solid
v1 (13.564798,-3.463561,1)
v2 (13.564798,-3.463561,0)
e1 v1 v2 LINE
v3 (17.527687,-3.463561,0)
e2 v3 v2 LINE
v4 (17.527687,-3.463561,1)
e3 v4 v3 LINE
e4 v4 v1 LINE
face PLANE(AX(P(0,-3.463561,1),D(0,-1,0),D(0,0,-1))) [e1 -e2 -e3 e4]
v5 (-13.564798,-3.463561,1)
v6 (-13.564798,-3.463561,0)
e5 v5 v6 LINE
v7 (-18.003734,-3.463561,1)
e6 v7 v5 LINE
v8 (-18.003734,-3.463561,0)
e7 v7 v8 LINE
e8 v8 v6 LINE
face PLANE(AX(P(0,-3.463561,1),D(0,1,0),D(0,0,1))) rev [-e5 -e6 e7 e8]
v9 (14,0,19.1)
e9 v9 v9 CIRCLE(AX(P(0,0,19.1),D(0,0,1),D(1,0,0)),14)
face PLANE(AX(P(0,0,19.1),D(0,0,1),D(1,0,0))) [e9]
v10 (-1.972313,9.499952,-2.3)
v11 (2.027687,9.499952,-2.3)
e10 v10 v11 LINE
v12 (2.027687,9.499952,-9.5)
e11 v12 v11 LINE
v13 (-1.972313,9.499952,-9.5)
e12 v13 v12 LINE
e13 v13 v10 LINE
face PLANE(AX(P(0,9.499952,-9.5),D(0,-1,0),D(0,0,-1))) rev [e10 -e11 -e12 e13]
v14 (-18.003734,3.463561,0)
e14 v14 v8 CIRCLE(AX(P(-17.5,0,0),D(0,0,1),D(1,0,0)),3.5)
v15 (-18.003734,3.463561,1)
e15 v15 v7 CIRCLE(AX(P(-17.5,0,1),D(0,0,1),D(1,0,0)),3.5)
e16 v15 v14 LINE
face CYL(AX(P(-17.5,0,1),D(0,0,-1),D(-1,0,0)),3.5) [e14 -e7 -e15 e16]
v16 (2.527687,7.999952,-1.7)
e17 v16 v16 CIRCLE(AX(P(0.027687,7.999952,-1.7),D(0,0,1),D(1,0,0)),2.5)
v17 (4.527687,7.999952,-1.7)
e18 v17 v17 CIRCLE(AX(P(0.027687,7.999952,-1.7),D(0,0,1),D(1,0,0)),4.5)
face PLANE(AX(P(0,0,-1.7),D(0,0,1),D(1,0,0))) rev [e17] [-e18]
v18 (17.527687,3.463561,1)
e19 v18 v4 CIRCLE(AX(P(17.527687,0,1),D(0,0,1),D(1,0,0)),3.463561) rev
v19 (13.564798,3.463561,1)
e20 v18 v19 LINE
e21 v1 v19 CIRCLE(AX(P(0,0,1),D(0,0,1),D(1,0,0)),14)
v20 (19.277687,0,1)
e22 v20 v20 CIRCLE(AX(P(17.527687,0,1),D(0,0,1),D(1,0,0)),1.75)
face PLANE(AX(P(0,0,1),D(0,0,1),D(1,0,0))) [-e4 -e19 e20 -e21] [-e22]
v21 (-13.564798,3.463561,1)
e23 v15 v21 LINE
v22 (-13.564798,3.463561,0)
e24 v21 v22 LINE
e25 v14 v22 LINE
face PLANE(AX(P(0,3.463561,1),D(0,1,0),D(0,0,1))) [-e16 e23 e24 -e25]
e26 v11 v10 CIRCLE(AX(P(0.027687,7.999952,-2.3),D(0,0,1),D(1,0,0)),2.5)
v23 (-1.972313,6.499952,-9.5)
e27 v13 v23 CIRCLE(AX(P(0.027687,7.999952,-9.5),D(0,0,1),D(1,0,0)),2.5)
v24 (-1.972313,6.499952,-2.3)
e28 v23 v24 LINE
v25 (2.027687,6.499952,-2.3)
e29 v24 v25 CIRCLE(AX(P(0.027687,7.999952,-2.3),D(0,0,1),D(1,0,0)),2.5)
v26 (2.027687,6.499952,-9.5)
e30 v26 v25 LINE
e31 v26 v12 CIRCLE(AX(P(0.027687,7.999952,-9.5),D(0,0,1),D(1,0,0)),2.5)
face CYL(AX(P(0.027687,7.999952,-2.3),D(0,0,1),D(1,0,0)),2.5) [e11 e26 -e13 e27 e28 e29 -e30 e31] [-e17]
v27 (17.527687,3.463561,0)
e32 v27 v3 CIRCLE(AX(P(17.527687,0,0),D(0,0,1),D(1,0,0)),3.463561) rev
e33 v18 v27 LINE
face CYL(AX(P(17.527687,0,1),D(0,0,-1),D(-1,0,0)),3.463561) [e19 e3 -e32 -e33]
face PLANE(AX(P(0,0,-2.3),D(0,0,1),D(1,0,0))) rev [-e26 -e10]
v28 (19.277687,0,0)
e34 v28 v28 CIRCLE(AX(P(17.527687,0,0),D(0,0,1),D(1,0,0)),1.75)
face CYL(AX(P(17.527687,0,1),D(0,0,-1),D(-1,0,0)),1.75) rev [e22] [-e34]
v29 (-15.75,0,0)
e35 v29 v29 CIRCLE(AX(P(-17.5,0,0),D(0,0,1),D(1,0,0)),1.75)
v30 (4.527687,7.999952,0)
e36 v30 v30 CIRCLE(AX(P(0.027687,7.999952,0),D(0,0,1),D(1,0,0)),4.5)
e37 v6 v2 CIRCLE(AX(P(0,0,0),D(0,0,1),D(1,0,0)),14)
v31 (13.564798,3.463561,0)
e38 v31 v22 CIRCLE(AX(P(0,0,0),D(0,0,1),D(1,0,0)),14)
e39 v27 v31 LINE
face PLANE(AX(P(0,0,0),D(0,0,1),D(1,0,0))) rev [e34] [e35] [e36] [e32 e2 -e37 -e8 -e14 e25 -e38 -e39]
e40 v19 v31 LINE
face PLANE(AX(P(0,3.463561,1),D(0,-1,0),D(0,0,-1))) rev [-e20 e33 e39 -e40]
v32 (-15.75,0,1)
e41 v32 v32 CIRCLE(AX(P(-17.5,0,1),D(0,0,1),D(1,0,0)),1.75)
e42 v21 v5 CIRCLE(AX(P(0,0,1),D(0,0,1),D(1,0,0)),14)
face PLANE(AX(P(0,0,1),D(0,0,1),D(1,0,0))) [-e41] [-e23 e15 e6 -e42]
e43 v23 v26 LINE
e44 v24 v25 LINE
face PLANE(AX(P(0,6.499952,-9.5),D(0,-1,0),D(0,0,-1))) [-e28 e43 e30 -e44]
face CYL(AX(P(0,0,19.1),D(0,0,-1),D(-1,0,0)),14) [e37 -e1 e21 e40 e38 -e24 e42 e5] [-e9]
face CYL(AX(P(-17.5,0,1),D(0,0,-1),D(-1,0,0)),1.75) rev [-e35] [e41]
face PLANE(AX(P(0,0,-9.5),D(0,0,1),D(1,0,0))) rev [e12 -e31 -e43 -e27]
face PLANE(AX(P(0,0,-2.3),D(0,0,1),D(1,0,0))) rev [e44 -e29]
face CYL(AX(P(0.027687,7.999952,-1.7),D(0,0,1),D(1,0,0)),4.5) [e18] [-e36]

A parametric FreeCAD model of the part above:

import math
import FreeCAD as App
import Part
import Sketcher

doc = App.newDocument("Part")
body = doc.addObject("PartDesign::Body", "Body")

# Sketch on XY plane
sketch1 = body.newObject("Sketcher::SketchObject", "Sketch")
sketch1.AttachmentSupport = (doc.getObject("XY_Plane"), [""])
sketch1.MapMode = "FlatFace"
sketch1.addGeometry(Part.Circle(App.Vector(0, 0, 0), App.Vector(0, 0, 1), 14), False)
sketch1.addConstraint(Sketcher.Constraint("Coincident", 0, 3, -1, 1))
sketch1.addConstraint(Sketcher.Constraint("Diameter", 0, 28.0))
pad1 = body.newObject("PartDesign::Pad", "Pad")
pad1.Profile = sketch1
pad1.Length = 19.1

# Sketch on XY plane
sketch2 = body.newObject("Sketcher::SketchObject", "Sketch001")
sketch2.AttachmentSupport = (doc.getObject("XY_Plane"), [""])
sketch2.MapMode = "FlatFace"
sketch2.addGeometry(Part.Circle(App.Vector(0.027687, 7.999952, 0), App.Vector(0, 0, 1), 4.5), False)
sketch2.addGeometry(Part.Circle(App.Vector(0.027687, 7.999952, 0), App.Vector(0, 0, 1), 2.5), False)
sketch2.addConstraint(Sketcher.Constraint("Coincident", 1, 3, 0, 3))
sketch2.addConstraint(Sketcher.Constraint("Diameter", 0, 9.0))
sketch2.addConstraint(Sketcher.Constraint("Diameter", 1, 5.0))
sketch2.addConstraint(Sketcher.Constraint("DistanceX", -1, 1, 0, 3, 0.027687))
sketch2.addConstraint(Sketcher.Constraint("DistanceY", -1, 1, 0, 3, 7.999952))
pad2 = body.newObject("PartDesign::Pad", "Pad001")
pad2.Profile = sketch2
pad2.Length = 1.7
pad2.Reversed = True

# Sketch on XY plane
sketch3 = body.newObject("Sketcher::SketchObject", "Sketch002")
sketch3.AttachmentSupport = (doc.getObject("XY_Plane"), [""])
sketch3.MapMode = "FlatFace"
sketch3.addGeometry(Part.LineSegment(App.Vector(-1.972313, 9.499952, 0), App.Vector(2.027687, 9.499952, 0)), False)
sketch3.addGeometry(Part.ArcOfCircle(Part.Circle(App.Vector(0.027687, 7.999952, 0), App.Vector(0, 0, 1), 2.5), math.radians(36.869898), math.radians(143.130102)), False)
sketch3.addConstraint(Sketcher.Constraint("Coincident", 0, 1, 1, 2))
sketch3.addConstraint(Sketcher.Constraint("Coincident", 1, 1, 0, 2))
sketch3.addConstraint(Sketcher.Constraint("Horizontal", 0))
sketch3.addConstraint(Sketcher.Constraint("Radius", 1, 2.5))
sketch3.addConstraint(Sketcher.Constraint("DistanceX", 0, 1, 0, 2, 4.0))
sketch3.addConstraint(Sketcher.Constraint("DistanceX", -1, 1, 1, 3, 0.027687))
sketch3.addConstraint(Sketcher.Constraint("DistanceY", -1, 1, 1, 3, 7.999952))
pad3 = body.newObject("PartDesign::Pad", "Pad002")
pad3.Profile = sketch3
pad3.Length = 2.3
pad3.Reversed = True

# Sketch on XY plane
sketch4 = body.newObject("Sketcher::SketchObject", "Sketch003")
sketch4.AttachmentSupport = (doc.getObject("XY_Plane"), [""])
sketch4.MapMode = "FlatFace"
sketch4.addGeometry(Part.ArcOfCircle(Part.Circle(App.Vector(0.027687, 7.999952, 0), App.Vector(0, 0, 1), 2.5), math.radians(-36.869898), math.radians(0)), False)
sketch4.addGeometry(Part.ArcOfCircle(Part.Circle(App.Vector(0.027687, 7.999952, 0), App.Vector(0, 0, 1), 2.5), math.radians(0), math.radians(36.869898)), False)
sketch4.addGeometry(Part.LineSegment(App.Vector(2.027687, 9.499952, 0), App.Vector(-1.972313, 9.499952, 0)), False)
sketch4.addGeometry(Part.ArcOfCircle(Part.Circle(App.Vector(0.027687, 7.999952, 0), App.Vector(0, 0, 1), 2.5), math.radians(143.130102), math.radians(216.869898)), False)
sketch4.addGeometry(Part.LineSegment(App.Vector(-1.972313, 6.499952, 0), App.Vector(2.027687, 6.499952, 0)), False)
sketch4.addConstraint(Sketcher.Constraint("Tangent", 0, 2, 1, 1))
sketch4.addConstraint(Sketcher.Constraint("Coincident", 1, 2, 2, 1))
sketch4.addConstraint(Sketcher.Constraint("Coincident", 2, 2, 3, 1))
sketch4.addConstraint(Sketcher.Constraint("Coincident", 3, 2, 4, 1))
sketch4.addConstraint(Sketcher.Constraint("Coincident", 4, 2, 0, 1))
sketch4.addConstraint(Sketcher.Constraint("Horizontal", 2))
sketch4.addConstraint(Sketcher.Constraint("Horizontal", 4))
sketch4.addConstraint(Sketcher.Constraint("Coincident", 3, 3, 0, 3))
sketch4.addConstraint(Sketcher.Constraint("Equal", 0, 1))
sketch4.addConstraint(Sketcher.Constraint("Equal", 1, 3))
sketch4.addConstraint(Sketcher.Constraint("Horizontal", 3, 3, 0, 2))
sketch4.addConstraint(Sketcher.Constraint("Vertical", 2, 2, 3, 2))
sketch4.addConstraint(Sketcher.Constraint("Radius", 0, 2.5))
sketch4.addConstraint(Sketcher.Constraint("DistanceX", 2, 2, 2, 1, 4.0))
sketch4.addConstraint(Sketcher.Constraint("DistanceX", -1, 1, 0, 3, 0.027687))
sketch4.addConstraint(Sketcher.Constraint("DistanceY", -1, 1, 0, 3, 7.999952))
pad4 = body.newObject("PartDesign::Pad", "Pad003")
pad4.Profile = sketch4
pad4.Length = 9.5
pad4.Reversed = True

# Sketch on XY plane
sketch5 = body.newObject("Sketcher::SketchObject", "Sketch004")
sketch5.AttachmentSupport = (doc.getObject("XY_Plane"), [""])
sketch5.MapMode = "FlatFace"
sketch5.addGeometry(Part.LineSegment(App.Vector(2.027687, 6.499952, 0), App.Vector(-1.972313, 6.499952, 0)), False)
sketch5.addGeometry(Part.ArcOfCircle(Part.Circle(App.Vector(0.027687, 7.999952, 0), App.Vector(0, 0, 1), 2.5), math.radians(-143.130102), math.radians(-36.869898)), False)
sketch5.addConstraint(Sketcher.Constraint("Coincident", 0, 1, 1, 2))
sketch5.addConstraint(Sketcher.Constraint("Coincident", 1, 1, 0, 2))
sketch5.addConstraint(Sketcher.Constraint("Horizontal", 0))
sketch5.addConstraint(Sketcher.Constraint("Radius", 1, 2.5))
sketch5.addConstraint(Sketcher.Constraint("DistanceX", 0, 2, 0, 1, 4.0))
sketch5.addConstraint(Sketcher.Constraint("DistanceX", -1, 1, 1, 3, 0.027687))
sketch5.addConstraint(Sketcher.Constraint("DistanceY", -1, 1, 1, 3, 7.999952))
pad5 = body.newObject("PartDesign::Pad", "Pad004")
pad5.Profile = sketch5
pad5.Length = 2.3
pad5.Reversed = True

# Sketch on XY plane
sketch6 = body.newObject("Sketcher::SketchObject", "Sketch005")
sketch6.AttachmentSupport = (doc.getObject("XY_Plane"), [""])
sketch6.MapMode = "FlatFace"
sketch6.addGeometry(Part.LineSegment(App.Vector(-13.564798, 3.463561, 0), App.Vector(-18.003734, 3.463561, 0)), False)
sketch6.addGeometry(Part.ArcOfCircle(Part.Circle(App.Vector(-17.5, 0, 0), App.Vector(0, 0, 1), 3.5), math.radians(98.274971), math.radians(261.725029)), False)
sketch6.addGeometry(Part.LineSegment(App.Vector(-18.003734, -3.463561, 0), App.Vector(-13.564798, -3.463561, 0)), False)
sketch6.addGeometry(Part.ArcOfCircle(Part.Circle(App.Vector(0, 0, 0), App.Vector(0, 0, 1), 14), math.radians(165.676455), math.radians(194.323545)), False)
sketch6.addGeometry(Part.Circle(App.Vector(-17.5, 0, 0), App.Vector(0, 0, 1), 1.75), False)
sketch6.addGeometry(Part.LineSegment(App.Vector(17.527687, 3.463561, 0), App.Vector(13.564798, 3.463561, 0)), False)
sketch6.addGeometry(Part.ArcOfCircle(Part.Circle(App.Vector(0, 0, 0), App.Vector(0, 0, 1), 14), math.radians(0), math.radians(14.323545)), False)
sketch6.addGeometry(Part.ArcOfCircle(Part.Circle(App.Vector(0, 0, 0), App.Vector(0, 0, 1), 14), math.radians(-14.323545), math.radians(0)), False)
sketch6.addGeometry(Part.LineSegment(App.Vector(13.564798, -3.463561, 0), App.Vector(17.527687, -3.463561, 0)), False)
sketch6.addGeometry(Part.ArcOfCircle(Part.Circle(App.Vector(17.527687, 0, 0), App.Vector(0, 0, 1), 3.463561), math.radians(-90), math.radians(90)), False)
sketch6.addGeometry(Part.Circle(App.Vector(17.527687, 0, 0), App.Vector(0, 0, 1), 1.75), False)
sketch6.addConstraint(Sketcher.Constraint("Coincident", 0, 2, 1, 1))
sketch6.addConstraint(Sketcher.Constraint("Coincident", 1, 2, 2, 1))
sketch6.addConstraint(Sketcher.Constraint("Coincident", 2, 2, 3, 2))
sketch6.addConstraint(Sketcher.Constraint("Coincident", 3, 1, 0, 1))
sketch6.addConstraint(Sketcher.Constraint("Coincident", 5, 2, 6, 2))
sketch6.addConstraint(Sketcher.Constraint("Tangent", 6, 1, 7, 2))
sketch6.addConstraint(Sketcher.Constraint("Coincident", 7, 1, 8, 1))
sketch6.addConstraint(Sketcher.Constraint("Tangent", 8, 2, 9, 1))
sketch6.addConstraint(Sketcher.Constraint("Tangent", 9, 2, 5, 1))
sketch6.addConstraint(Sketcher.Constraint("Horizontal", 0))
sketch6.addConstraint(Sketcher.Constraint("Horizontal", 2))
sketch6.addConstraint(Sketcher.Constraint("Horizontal", 5))
sketch6.addConstraint(Sketcher.Constraint("Horizontal", 8))
sketch6.addConstraint(Sketcher.Constraint("Coincident", 3, 3, -1, 1))
sketch6.addConstraint(Sketcher.Constraint("Coincident", 6, 3, -1, 1))
sketch6.addConstraint(Sketcher.Constraint("Coincident", 4, 3, 1, 3))
sketch6.addConstraint(Sketcher.Constraint("Coincident", 10, 3, 9, 3))
sketch6.addConstraint(Sketcher.Constraint("Equal", 3, 6))
sketch6.addConstraint(Sketcher.Constraint("Equal", 6, 7))
sketch6.addConstraint(Sketcher.Constraint("Equal", 4, 10))
sketch6.addConstraint(Sketcher.Constraint("Symmetric", 0, 2, 1, 2, -1))
sketch6.addConstraint(Sketcher.Constraint("PointOnObject", 9, 3, -1))
sketch6.addConstraint(Sketcher.Constraint("PointOnObject", 6, 1, -1))
sketch6.addConstraint(Sketcher.Constraint("Horizontal", 3, 1, 5, 2))
sketch6.addConstraint(Sketcher.Constraint("Radius", 3, 14.0))
sketch6.addConstraint(Sketcher.Constraint("Diameter", 4, 3.5))
sketch6.addConstraint(Sketcher.Constraint("Radius", 1, 3.5))
sketch6.addConstraint(Sketcher.Constraint("DistanceX", 1, 3, -1, 1, 17.5))
sketch6.addConstraint(Sketcher.Constraint("Radius", 9, 3.463561))
sketch6.addConstraint(Sketcher.Constraint("DistanceX", 5, 2, 5, 1, 3.962889))
pad6 = body.newObject("PartDesign::Pad", "Pad005")
pad6.Profile = sketch6
pad6.Length = 1

doc.recompute()
